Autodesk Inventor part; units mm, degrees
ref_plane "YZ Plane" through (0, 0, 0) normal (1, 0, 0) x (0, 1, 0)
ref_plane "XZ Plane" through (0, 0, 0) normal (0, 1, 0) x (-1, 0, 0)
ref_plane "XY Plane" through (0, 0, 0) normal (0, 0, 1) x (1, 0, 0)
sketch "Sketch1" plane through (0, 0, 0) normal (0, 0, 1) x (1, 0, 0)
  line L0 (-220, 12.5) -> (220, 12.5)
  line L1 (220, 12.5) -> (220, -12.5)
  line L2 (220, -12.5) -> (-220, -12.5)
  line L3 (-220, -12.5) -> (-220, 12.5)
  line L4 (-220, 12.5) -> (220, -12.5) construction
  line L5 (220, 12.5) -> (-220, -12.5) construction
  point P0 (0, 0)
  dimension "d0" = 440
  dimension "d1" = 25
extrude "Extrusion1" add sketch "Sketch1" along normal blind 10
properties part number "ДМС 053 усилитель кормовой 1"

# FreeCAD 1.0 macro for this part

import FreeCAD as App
import Part
import Sketcher
from FreeCAD import Vector
Q = App.Units.Quantity

doc = App.newDocument("Part")
body = doc.addObject("PartDesign::Body", "Body")

sketch1 = doc.addObject("Sketcher::SketchObject", "Sketch")
body.addObject(sketch1)
sketch1.AttachmentSupport = (doc.XY_Plane, [""])
sketch1.MapMode = "FlatFace"
sketch1.addGeometry(Part.LineSegment(Vector(220, 12, 0), Vector(-220, 12, 0)), False)
sketch1.addGeometry(Part.LineSegment(Vector(-220, 12, 0), Vector(-220, -12, 0)), False)
sketch1.addGeometry(Part.LineSegment(Vector(-220, -12, 0), Vector(220, -12, 0)), False)
sketch1.addGeometry(Part.LineSegment(Vector(220, -12, 0), Vector(220, 12, 0)), False)
sketch1.addConstraint(Sketcher.Constraint("Coincident", 0, 2, 1, 1))
sketch1.addConstraint(Sketcher.Constraint("Coincident", 1, 2, 2, 1))
sketch1.addConstraint(Sketcher.Constraint("Coincident", 2, 2, 3, 1))
sketch1.addConstraint(Sketcher.Constraint("Coincident", 3, 2, 0, 1))
sketch1.addConstraint(Sketcher.Constraint("Horizontal", 0))
sketch1.addConstraint(Sketcher.Constraint("Vertical", 1))
sketch1.addConstraint(Sketcher.Constraint("Horizontal", 2))
sketch1.addConstraint(Sketcher.Constraint("Vertical", 3))
sketch1.addConstraint(Sketcher.Constraint("Symmetric", 0, 2, 2, 2, -1, 1))
sketch1.addConstraint(Sketcher.Constraint("DistanceX", 0, 2, 0, 1, Q("440 mm")))
sketch1.addConstraint(Sketcher.Constraint("DistanceY", 1, 2, 1, 1, Q("25 mm")))
pad1 = doc.addObject("PartDesign::Pad", "Pad")
body.addObject(pad1)
pad1.Profile = sketch1
pad1.Length = 10

doc.recompute()
